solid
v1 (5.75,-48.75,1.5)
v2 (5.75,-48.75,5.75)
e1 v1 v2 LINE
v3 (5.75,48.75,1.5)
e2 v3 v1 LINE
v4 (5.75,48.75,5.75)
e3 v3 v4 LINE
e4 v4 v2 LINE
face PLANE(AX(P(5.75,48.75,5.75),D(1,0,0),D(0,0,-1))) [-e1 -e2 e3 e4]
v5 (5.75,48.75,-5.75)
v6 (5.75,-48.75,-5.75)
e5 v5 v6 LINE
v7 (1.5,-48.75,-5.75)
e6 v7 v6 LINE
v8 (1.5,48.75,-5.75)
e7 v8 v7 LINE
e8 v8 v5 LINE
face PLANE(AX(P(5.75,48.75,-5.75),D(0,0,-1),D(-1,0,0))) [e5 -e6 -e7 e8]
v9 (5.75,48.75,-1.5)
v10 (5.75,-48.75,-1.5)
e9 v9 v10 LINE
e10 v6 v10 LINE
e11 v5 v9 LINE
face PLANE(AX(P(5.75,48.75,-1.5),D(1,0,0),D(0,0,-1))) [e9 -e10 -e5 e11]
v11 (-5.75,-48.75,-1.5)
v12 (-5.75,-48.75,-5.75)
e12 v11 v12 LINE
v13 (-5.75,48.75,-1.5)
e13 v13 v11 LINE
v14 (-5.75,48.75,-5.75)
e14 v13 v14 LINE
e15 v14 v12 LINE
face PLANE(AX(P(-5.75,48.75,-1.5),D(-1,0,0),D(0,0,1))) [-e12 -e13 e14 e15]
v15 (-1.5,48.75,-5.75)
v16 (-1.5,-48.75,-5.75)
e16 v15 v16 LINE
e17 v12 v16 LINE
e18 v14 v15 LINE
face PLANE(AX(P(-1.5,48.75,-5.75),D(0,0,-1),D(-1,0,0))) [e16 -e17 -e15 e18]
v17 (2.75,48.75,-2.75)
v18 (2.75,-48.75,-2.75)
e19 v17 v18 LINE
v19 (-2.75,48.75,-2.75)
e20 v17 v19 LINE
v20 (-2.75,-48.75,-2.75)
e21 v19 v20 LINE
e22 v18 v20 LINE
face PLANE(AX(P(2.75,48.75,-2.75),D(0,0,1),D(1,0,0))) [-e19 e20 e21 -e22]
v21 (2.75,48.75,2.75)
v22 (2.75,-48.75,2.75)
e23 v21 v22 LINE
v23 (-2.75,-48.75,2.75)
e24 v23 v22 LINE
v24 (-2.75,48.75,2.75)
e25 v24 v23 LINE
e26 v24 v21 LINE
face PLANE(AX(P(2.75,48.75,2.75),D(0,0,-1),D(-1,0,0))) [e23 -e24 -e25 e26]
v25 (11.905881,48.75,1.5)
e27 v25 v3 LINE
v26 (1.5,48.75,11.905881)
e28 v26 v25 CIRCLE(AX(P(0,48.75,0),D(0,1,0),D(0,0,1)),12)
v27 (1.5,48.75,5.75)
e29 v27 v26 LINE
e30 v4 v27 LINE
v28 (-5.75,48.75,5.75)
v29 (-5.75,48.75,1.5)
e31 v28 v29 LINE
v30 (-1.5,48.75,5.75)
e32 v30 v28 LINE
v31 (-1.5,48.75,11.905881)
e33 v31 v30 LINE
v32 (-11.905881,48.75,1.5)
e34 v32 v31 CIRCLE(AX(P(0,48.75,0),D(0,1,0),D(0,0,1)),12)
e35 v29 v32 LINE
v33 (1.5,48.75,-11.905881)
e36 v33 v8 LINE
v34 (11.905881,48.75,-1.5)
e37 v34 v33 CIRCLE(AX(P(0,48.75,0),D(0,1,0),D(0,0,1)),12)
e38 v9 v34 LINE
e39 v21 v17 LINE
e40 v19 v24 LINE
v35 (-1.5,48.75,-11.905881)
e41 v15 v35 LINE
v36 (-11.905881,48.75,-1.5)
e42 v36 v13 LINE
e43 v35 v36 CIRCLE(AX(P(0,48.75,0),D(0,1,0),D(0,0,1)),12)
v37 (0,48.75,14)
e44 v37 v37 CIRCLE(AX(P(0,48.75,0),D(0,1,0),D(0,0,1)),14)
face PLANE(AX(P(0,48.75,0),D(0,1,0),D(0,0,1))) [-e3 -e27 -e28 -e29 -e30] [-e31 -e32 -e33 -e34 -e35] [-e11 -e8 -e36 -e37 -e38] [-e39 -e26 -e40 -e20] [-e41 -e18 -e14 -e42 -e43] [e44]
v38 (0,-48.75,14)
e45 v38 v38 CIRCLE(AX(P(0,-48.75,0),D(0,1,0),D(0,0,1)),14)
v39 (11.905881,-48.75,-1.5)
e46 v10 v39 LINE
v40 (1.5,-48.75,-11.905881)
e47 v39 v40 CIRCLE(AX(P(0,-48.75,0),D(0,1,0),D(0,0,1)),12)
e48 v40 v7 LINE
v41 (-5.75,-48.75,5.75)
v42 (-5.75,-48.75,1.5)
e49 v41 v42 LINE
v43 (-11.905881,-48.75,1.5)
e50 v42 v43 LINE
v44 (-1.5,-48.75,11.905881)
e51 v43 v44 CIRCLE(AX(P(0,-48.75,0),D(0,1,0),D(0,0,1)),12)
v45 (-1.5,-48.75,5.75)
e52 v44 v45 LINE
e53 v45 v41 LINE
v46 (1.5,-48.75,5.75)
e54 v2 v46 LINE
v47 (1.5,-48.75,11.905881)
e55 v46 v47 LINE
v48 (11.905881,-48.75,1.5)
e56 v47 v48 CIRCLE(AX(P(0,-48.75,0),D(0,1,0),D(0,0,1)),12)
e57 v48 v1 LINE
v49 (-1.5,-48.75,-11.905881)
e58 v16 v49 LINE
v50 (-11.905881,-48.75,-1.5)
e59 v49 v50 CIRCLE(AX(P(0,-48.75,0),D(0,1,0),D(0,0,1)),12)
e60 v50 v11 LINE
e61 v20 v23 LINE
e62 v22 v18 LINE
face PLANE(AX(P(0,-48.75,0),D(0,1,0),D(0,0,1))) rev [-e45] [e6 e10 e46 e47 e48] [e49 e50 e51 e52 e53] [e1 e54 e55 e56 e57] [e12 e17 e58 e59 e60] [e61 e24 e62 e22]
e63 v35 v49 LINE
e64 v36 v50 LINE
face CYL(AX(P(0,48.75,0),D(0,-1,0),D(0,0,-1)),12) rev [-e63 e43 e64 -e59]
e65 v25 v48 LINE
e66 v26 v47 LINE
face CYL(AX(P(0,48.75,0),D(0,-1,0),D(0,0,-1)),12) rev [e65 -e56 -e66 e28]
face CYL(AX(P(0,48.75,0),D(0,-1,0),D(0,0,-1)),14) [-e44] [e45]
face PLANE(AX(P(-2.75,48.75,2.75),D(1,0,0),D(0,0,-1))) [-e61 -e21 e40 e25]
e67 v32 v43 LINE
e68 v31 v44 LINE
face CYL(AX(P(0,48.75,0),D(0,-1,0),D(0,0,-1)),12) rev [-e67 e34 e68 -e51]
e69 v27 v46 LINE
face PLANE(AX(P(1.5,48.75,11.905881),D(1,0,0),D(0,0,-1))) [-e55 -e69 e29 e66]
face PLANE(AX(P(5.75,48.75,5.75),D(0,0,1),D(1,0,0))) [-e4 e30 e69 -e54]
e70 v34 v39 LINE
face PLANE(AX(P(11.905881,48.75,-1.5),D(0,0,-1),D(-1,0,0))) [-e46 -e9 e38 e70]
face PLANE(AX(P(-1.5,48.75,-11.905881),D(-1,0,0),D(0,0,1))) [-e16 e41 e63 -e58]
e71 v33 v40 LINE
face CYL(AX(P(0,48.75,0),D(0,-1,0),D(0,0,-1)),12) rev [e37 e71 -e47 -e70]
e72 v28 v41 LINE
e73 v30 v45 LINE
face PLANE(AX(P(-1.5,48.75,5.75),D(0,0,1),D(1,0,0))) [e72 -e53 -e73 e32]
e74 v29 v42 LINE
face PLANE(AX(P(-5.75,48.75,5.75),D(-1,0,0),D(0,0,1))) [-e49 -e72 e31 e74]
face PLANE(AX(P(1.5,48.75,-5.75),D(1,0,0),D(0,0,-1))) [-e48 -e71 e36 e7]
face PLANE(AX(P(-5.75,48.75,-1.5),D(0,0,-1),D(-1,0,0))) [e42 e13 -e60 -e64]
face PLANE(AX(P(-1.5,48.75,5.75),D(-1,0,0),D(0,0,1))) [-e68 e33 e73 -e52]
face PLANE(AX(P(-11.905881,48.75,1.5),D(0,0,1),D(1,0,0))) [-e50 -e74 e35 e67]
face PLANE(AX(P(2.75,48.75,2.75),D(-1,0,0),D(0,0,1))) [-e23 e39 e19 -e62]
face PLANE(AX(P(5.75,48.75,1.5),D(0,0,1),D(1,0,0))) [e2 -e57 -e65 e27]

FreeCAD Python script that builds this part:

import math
import FreeCAD as App
import Part
import Sketcher
from FreeCAD import Vector
Q = App.Units.Quantity


def add_polygon(sketch, points):
    """Adds a closed chain of lines whose ends are joined by coincident constraints."""
    first, n = sketch.GeometryCount, len(points)
    for a, b in zip(points, points[1:] + points[:1]):
        sketch.addGeometry(Part.LineSegment(App.Vector(*a, 0), App.Vector(*b, 0)), False)
    for i in range(n):
        sketch.addConstraint(Sketcher.Constraint("Coincident", first + i, 2, first + (i + 1) % n, 1))

doc = App.newDocument("Part")
params = doc.addObject("Spreadsheet::Sheet", "Params")
for row, (alias, value) in enumerate([
    ("sketch1_diameter", "28 mm"),
    ("sketch1_radius", "12 mm"),
    ("sketch1_width", "5.5 mm"),
    ("pad1_length", "97.5 mm"),
], start=1):
    params.set(f"A{row}", alias)
    params.set(f"B{row}", "=" + value)
    params.setAlias(f"B{row}", alias)

body = doc.addObject("PartDesign::Body", "Body")

sketch1 = doc.addObject("Sketcher::SketchObject", "Sketch")
body.addObject(sketch1)
sketch1.AttachmentSupport = (doc.XZ_Plane, [""])
sketch1.MapMode = "FlatFace"
sketch1.addGeometry(Part.Circle(Vector(0, 0, 0), Vector(0, 0, 1), 14), False)
sketch1.addGeometry(Part.LineSegment(Vector(-5.8, -5.8, 0), Vector(-5.8, -1.5, 0)), False)
sketch1.addGeometry(Part.LineSegment(Vector(-5.8, -1.5, 0), Vector(-11.9, -1.5, 0)), False)
sketch1.addGeometry(Part.ArcOfCircle(Part.Circle(Vector(0, 0, 0), Vector(0, 0, 1), 12), math.radians(-173), math.radians(-97)), False)
sketch1.addGeometry(Part.LineSegment(Vector(-1.5, -11.9, 0), Vector(-1.5, -5.8, 0)), False)
sketch1.addGeometry(Part.LineSegment(Vector(-1.5, -5.8, 0), Vector(-5.8, -5.8, 0)), False)
sketch1.addGeometry(Part.LineSegment(Vector(-5.8, 1.5, 0), Vector(-5.8, 5.8, 0)), False)
sketch1.addGeometry(Part.LineSegment(Vector(-5.8, 5.8, 0), Vector(-1.5, 5.8, 0)), False)
sketch1.addGeometry(Part.LineSegment(Vector(-1.5, 5.8, 0), Vector(-1.5, 11.9, 0)), False)
sketch1.addGeometry(Part.ArcOfCircle(Part.Circle(Vector(0, 0, 0), Vector(0, 0, 1), 12), math.radians(97), math.radians(173)), False)
sketch1.addGeometry(Part.LineSegment(Vector(-11.9, 1.5, 0), Vector(-5.8, 1.5, 0)), False)
sketch1.addGeometry(Part.LineSegment(Vector(5.8, -1.5, 0), Vector(5.8, -5.8, 0)), False)
sketch1.addGeometry(Part.LineSegment(Vector(5.8, -5.8, 0), Vector(1.5, -5.8, 0)), False)
sketch1.addGeometry(Part.LineSegment(Vector(1.5, -5.8, 0), Vector(1.5, -11.9, 0)), False)
sketch1.addGeometry(Part.ArcOfCircle(Part.Circle(Vector(0, 0, 0), Vector(0, 0, 1), 12), math.radians(-83), math.radians(-7)), False)
sketch1.addGeometry(Part.LineSegment(Vector(11.9, -1.5, 0), Vector(5.8, -1.5, 0)), False)
add_polygon(sketch1, [(2.8, 2.8), (-2.8, 2.8), (-2.8, -2.8), (2.8, -2.8)])
sketch1.addGeometry(Part.LineSegment(Vector(1.5, 5.8, 0), Vector(5.8, 5.8, 0)), False)
sketch1.addGeometry(Part.LineSegment(Vector(5.8, 5.8, 0), Vector(5.8, 1.5, 0)), False)
sketch1.addGeometry(Part.LineSegment(Vector(5.8, 1.5, 0), Vector(11.9, 1.5, 0)), False)
sketch1.addGeometry(Part.ArcOfCircle(Part.Circle(Vector(0, 0, 0), Vector(0, 0, 1), 12), math.radians(7), math.radians(83)), False)
sketch1.addGeometry(Part.LineSegment(Vector(1.5, 11.9, 0), Vector(1.5, 5.8, 0)), False)
sketch1.addConstraint([
    Sketcher.Constraint("Coincident", 1, 2, 2, 1),
    Sketcher.Constraint("Coincident", 2, 2, 3, 1),
    Sketcher.Constraint("Coincident", 3, 2, 4, 1),
    Sketcher.Constraint("Coincident", 4, 2, 5, 1),
    Sketcher.Constraint("Coincident", 5, 2, 1, 1),
    Sketcher.Constraint("Coincident", 6, 2, 7, 1),
    Sketcher.Constraint("Coincident", 7, 2, 8, 1),
    Sketcher.Constraint("Coincident", 8, 2, 9, 1),
    Sketcher.Constraint("Coincident", 9, 2, 10, 1),
    Sketcher.Constraint("Coincident", 10, 2, 6, 1),
    Sketcher.Constraint("Coincident", 11, 2, 12, 1),
    Sketcher.Constraint("Coincident", 12, 2, 13, 1),
    Sketcher.Constraint("Coincident", 13, 2, 14, 1),
    Sketcher.Constraint("Coincident", 14, 2, 15, 1),
    Sketcher.Constraint("Coincident", 15, 2, 11, 1),
    Sketcher.Constraint("Coincident", 20, 2, 21, 1),
    Sketcher.Constraint("Coincident", 21, 2, 22, 1),
    Sketcher.Constraint("Coincident", 22, 2, 23, 1),
    Sketcher.Constraint("Coincident", 23, 2, 24, 1),
    Sketcher.Constraint("Coincident", 24, 2, 20, 1),
    Sketcher.Constraint("Vertical", 1),
    Sketcher.Constraint("Horizontal", 2),
    Sketcher.Constraint("Vertical", 4),
    Sketcher.Constraint("Horizontal", 5),
    Sketcher.Constraint("Vertical", 6),
    Sketcher.Constraint("Horizontal", 7),
    Sketcher.Constraint("Vertical", 8),
    Sketcher.Constraint("Horizontal", 10),
    Sketcher.Constraint("Vertical", 11),
    Sketcher.Constraint("Horizontal", 12),
    Sketcher.Constraint("Vertical", 13),
    Sketcher.Constraint("Horizontal", 15),
    Sketcher.Constraint("Horizontal", 16),
    Sketcher.Constraint("Vertical", 17),
    Sketcher.Constraint("Horizontal", 18),
    Sketcher.Constraint("Vertical", 19),
    Sketcher.Constraint("Horizontal", 20),
    Sketcher.Constraint("Vertical", 21),
    Sketcher.Constraint("Horizontal", 22),
    Sketcher.Constraint("Vertical", 24),
    Sketcher.Constraint("Coincident", 0, 3, -1, 1),
    Sketcher.Constraint("Coincident", 3, 3, -1, 1),
    Sketcher.Constraint("Coincident", 9, 3, -1, 1),
    Sketcher.Constraint("Coincident", 14, 3, -1, 1),
    Sketcher.Constraint("Coincident", 23, 3, -1, 1),
    Sketcher.Constraint("Equal", 3, 9),
    Sketcher.Constraint("Equal", 9, 14),
    Sketcher.Constraint("Equal", 14, 23),
    Sketcher.Constraint("Symmetric", 6, 2, 11, 2, -1, 1),
    Sketcher.Constraint("Symmetric", 16, 2, 18, 2, -1, 1),
    Sketcher.Constraint("Symmetric", 5, 2, 20, 2, -1, 1),
    Sketcher.Constraint("Symmetric", 5, 2, 11, 2, -2),
    Sketcher.Constraint("Horizontal", 3, 2, 13, 2),
    Sketcher.Constraint("Horizontal", 2, 2, 14, 2),
    Sketcher.Constraint("Horizontal", 10, 2, 21, 2),
    Sketcher.Constraint("Horizontal", 8, 2, 23, 2),
    Sketcher.Constraint("Vertical", 4, 2, 7, 2),
    Sketcher.Constraint("Vertical", 2, 2, 9, 2),
    Sketcher.Constraint("Equal", 20, 1),
    Sketcher.Constraint("Equal", 22, 4),
    Sketcher.Constraint("Equal", 18, 17),
    Sketcher.Constraint("Diameter", 0, Q("28 mm")),
    Sketcher.Constraint("Radius", 3, Q("12 mm")),
    Sketcher.Constraint("DistanceX", 16, 2, 16, 1, Q("5.5 mm")),
    Sketcher.Constraint("DistanceY", 2, 2, 9, 2, Q("3 mm")),
    Sketcher.Constraint("DistanceY", 16, 2, 7, 2, Q("3 mm")),
])
sketch1.setExpression("Constraints[65]", "Params.sketch1_diameter")
sketch1.setExpression("Constraints[66]", "Params.sketch1_radius")
sketch1.setExpression("Constraints[67]", "Params.sketch1_width")
pad1 = doc.addObject("PartDesign::Pad", "Pad")
body.addObject(pad1)
pad1.Profile = sketch1
pad1.setExpression("Length", "Params.pad1_length")
pad1.Midplane = True

doc.recompute()
